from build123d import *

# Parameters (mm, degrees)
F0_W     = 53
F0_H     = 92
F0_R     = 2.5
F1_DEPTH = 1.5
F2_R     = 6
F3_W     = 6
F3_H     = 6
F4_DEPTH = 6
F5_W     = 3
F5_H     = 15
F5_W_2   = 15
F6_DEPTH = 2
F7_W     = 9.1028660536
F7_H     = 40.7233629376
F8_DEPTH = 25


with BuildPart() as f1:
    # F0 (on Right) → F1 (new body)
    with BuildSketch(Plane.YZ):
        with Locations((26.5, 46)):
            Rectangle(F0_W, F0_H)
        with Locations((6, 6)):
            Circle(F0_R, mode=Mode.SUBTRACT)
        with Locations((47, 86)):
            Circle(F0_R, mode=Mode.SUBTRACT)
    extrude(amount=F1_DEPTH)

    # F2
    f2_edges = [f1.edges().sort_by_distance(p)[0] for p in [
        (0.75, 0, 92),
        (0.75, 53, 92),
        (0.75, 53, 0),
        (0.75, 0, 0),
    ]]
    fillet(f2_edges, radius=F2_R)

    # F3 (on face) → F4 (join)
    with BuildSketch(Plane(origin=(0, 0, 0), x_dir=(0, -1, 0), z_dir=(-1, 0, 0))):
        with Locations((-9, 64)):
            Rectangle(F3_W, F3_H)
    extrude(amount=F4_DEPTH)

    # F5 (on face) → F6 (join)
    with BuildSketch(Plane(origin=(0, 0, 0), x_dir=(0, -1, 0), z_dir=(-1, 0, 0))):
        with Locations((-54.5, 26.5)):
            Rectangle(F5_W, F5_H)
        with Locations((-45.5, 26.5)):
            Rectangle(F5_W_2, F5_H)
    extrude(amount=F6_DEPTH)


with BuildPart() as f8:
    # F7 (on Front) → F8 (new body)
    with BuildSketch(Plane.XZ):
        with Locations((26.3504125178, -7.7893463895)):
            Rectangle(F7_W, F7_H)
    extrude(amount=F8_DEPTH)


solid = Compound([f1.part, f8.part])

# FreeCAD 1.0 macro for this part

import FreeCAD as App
import Part
import Sketcher


def edges_at(feature, points):
    """Names of the edges that pass closest to the given points."""
    edges = feature.Shape.Edges
    near = lambda p: min(range(len(edges)), key=lambda i: edges[i].distToShape(Part.Vertex(*p))[0])
    return sorted({f"Edge{near(p) + 1}" for p in points})


def add_polygon(sketch, points):
    """Adds a closed chain of lines whose ends are joined by coincident constraints."""
    first, n = sketch.GeometryCount, len(points)
    for a, b in zip(points, points[1:] + points[:1]):
        sketch.addGeometry(Part.LineSegment(App.Vector(*a, 0), App.Vector(*b, 0)), False)
    for i in range(n):
        sketch.addConstraint(Sketcher.Constraint("Coincident", first + i, 2, first + (i + 1) % n, 1))

doc = App.newDocument("Part")
body = doc.addObject("PartDesign::Body", "Body")

# Sketch on YZ plane
sketch1 = body.newObject("Sketcher::SketchObject", "Sketch")
sketch1.AttachmentSupport = (doc.getObject("YZ_Plane"), [""])
sketch1.MapMode = "FlatFace"
add_polygon(sketch1, [(0, 92), (0, 0), (53, 0), (53, 92)])  # lines 0-3
sketch1.addGeometry(Part.Circle(App.Vector(6, 6, 0), App.Vector(0, 0, 1), 2.5), False)  # 4
sketch1.addGeometry(Part.Circle(App.Vector(47, 86, 0), App.Vector(0, 0, 1), 2.5), False)  # 5
sketch1.addConstraint([
    Sketcher.Constraint("Vertical", 0),
    Sketcher.Constraint("Horizontal", 1),
    Sketcher.Constraint("Vertical", 2),
    Sketcher.Constraint("Horizontal", 3),
    Sketcher.Constraint("Coincident", 0, 2, -1, 1),
    Sketcher.Constraint("Equal", 4, 5),
    Sketcher.Constraint("Diameter", 4, 5.0),
    Sketcher.Constraint("DistanceX", 1, 1, 1, 2, 53.0),
    Sketcher.Constraint("DistanceY", 0, 2, 0, 1, 92.0),
    Sketcher.Constraint("DistanceX", -1, 1, 4, 3, 6.0),
    Sketcher.Constraint("DistanceY", -1, 1, 4, 3, 6.0),
    Sketcher.Constraint("DistanceX", -1, 1, 5, 3, 47.0),
    Sketcher.Constraint("DistanceY", -1, 1, 5, 3, 86.0),
])
pad1 = body.newObject("PartDesign::Pad", "Pad")
pad1.Profile = sketch1
pad1.Length = 1.5
doc.recompute()

fillet = body.newObject("PartDesign::Fillet", "Fillet")
fillet.Base = (pad1, edges_at(pad1, [
    (0.75, 0, 92),
    (0.75, 53, 92),
    (0.75, 53, 0),
    (0.75, 0, 0),
]))
fillet.Radius = 6

# Sketch on YZ plane
sketch2 = body.newObject("Sketcher::SketchObject", "Sketch001")
sketch2.AttachmentSupport = (doc.getObject("YZ_Plane"), [""])
sketch2.MapMode = "FlatFace"
add_polygon(sketch2, [(12, 67), (12, 61), (6, 61), (6, 67)])  # lines 0-3
sketch2.addConstraint([
    Sketcher.Constraint("Vertical", 0),
    Sketcher.Constraint("Horizontal", 1),
    Sketcher.Constraint("Vertical", 2),
    Sketcher.Constraint("Horizontal", 3),
    Sketcher.Constraint("Equal", 3, 0),
    Sketcher.Constraint("DistanceX", 1, 2, 1, 1, 6.0),
    Sketcher.Constraint("DistanceX", -1, 1, 0, 2, 12.0),
    Sketcher.Constraint("DistanceY", -1, 1, 0, 2, 61.0),
])
pad2 = body.newObject("PartDesign::Pad", "Pad001")
pad2.Profile = sketch2
pad2.Length = 6
pad2.Reversed = True

# Sketch on YZ plane
sketch3 = body.newObject("Sketcher::SketchObject", "Sketch002")
sketch3.AttachmentSupport = (doc.getObject("YZ_Plane"), [""])
sketch3.MapMode = "FlatFace"
add_polygon(sketch3, [(56, 34), (56, 19), (38, 19), (38, 34)])  # lines 0-3
sketch3.addConstraint([
    Sketcher.Constraint("Vertical", 0),
    Sketcher.Constraint("Horizontal", 1),
    Sketcher.Constraint("Vertical", 2),
    Sketcher.Constraint("Horizontal", 3),
    Sketcher.Constraint("DistanceX", 1, 2, 1, 1, 18.0),
    Sketcher.Constraint("DistanceY", 0, 2, 0, 1, 15.0),
    Sketcher.Constraint("DistanceX", -1, 1, 0, 2, 56.0),
    Sketcher.Constraint("DistanceY", -1, 1, 0, 2, 19.0),
])
pad3 = body.newObject("PartDesign::Pad", "Pad002")
pad3.Profile = sketch3
pad3.Length = 2
pad3.Reversed = True
body2 = doc.addObject("PartDesign::Body", "Body001")

# Sketch on XZ plane
sketch4 = body2.newObject("Sketcher::SketchObject", "Sketch003")
sketch4.AttachmentSupport = (doc.getObject("XZ_Plane001"), [""])
sketch4.MapMode = "FlatFace"
add_polygon(sketch4, [(22, 13), (22, -28), (31, -28), (31, 13)])  # lines 0-3
sketch4.addConstraint([
    Sketcher.Constraint("Vertical", 0),
    Sketcher.Constraint("Horizontal", 1),
    Sketcher.Constraint("Vertical", 2),
    Sketcher.Constraint("Horizontal", 3),
    Sketcher.Constraint("DistanceX", 1, 1, 1, 2, 9.102866),
    Sketcher.Constraint("DistanceY", 0, 2, 0, 1, 40.723363),
    Sketcher.Constraint("DistanceX", -1, 1, 0, 2, 21.798979),
    Sketcher.Constraint("DistanceY", 0, 2, -1, 1, 28.151028),
])
pad4 = body2.newObject("PartDesign::Pad", "Pad003")
pad4.Profile = sketch4
pad4.Length = 25

doc.recompute()
